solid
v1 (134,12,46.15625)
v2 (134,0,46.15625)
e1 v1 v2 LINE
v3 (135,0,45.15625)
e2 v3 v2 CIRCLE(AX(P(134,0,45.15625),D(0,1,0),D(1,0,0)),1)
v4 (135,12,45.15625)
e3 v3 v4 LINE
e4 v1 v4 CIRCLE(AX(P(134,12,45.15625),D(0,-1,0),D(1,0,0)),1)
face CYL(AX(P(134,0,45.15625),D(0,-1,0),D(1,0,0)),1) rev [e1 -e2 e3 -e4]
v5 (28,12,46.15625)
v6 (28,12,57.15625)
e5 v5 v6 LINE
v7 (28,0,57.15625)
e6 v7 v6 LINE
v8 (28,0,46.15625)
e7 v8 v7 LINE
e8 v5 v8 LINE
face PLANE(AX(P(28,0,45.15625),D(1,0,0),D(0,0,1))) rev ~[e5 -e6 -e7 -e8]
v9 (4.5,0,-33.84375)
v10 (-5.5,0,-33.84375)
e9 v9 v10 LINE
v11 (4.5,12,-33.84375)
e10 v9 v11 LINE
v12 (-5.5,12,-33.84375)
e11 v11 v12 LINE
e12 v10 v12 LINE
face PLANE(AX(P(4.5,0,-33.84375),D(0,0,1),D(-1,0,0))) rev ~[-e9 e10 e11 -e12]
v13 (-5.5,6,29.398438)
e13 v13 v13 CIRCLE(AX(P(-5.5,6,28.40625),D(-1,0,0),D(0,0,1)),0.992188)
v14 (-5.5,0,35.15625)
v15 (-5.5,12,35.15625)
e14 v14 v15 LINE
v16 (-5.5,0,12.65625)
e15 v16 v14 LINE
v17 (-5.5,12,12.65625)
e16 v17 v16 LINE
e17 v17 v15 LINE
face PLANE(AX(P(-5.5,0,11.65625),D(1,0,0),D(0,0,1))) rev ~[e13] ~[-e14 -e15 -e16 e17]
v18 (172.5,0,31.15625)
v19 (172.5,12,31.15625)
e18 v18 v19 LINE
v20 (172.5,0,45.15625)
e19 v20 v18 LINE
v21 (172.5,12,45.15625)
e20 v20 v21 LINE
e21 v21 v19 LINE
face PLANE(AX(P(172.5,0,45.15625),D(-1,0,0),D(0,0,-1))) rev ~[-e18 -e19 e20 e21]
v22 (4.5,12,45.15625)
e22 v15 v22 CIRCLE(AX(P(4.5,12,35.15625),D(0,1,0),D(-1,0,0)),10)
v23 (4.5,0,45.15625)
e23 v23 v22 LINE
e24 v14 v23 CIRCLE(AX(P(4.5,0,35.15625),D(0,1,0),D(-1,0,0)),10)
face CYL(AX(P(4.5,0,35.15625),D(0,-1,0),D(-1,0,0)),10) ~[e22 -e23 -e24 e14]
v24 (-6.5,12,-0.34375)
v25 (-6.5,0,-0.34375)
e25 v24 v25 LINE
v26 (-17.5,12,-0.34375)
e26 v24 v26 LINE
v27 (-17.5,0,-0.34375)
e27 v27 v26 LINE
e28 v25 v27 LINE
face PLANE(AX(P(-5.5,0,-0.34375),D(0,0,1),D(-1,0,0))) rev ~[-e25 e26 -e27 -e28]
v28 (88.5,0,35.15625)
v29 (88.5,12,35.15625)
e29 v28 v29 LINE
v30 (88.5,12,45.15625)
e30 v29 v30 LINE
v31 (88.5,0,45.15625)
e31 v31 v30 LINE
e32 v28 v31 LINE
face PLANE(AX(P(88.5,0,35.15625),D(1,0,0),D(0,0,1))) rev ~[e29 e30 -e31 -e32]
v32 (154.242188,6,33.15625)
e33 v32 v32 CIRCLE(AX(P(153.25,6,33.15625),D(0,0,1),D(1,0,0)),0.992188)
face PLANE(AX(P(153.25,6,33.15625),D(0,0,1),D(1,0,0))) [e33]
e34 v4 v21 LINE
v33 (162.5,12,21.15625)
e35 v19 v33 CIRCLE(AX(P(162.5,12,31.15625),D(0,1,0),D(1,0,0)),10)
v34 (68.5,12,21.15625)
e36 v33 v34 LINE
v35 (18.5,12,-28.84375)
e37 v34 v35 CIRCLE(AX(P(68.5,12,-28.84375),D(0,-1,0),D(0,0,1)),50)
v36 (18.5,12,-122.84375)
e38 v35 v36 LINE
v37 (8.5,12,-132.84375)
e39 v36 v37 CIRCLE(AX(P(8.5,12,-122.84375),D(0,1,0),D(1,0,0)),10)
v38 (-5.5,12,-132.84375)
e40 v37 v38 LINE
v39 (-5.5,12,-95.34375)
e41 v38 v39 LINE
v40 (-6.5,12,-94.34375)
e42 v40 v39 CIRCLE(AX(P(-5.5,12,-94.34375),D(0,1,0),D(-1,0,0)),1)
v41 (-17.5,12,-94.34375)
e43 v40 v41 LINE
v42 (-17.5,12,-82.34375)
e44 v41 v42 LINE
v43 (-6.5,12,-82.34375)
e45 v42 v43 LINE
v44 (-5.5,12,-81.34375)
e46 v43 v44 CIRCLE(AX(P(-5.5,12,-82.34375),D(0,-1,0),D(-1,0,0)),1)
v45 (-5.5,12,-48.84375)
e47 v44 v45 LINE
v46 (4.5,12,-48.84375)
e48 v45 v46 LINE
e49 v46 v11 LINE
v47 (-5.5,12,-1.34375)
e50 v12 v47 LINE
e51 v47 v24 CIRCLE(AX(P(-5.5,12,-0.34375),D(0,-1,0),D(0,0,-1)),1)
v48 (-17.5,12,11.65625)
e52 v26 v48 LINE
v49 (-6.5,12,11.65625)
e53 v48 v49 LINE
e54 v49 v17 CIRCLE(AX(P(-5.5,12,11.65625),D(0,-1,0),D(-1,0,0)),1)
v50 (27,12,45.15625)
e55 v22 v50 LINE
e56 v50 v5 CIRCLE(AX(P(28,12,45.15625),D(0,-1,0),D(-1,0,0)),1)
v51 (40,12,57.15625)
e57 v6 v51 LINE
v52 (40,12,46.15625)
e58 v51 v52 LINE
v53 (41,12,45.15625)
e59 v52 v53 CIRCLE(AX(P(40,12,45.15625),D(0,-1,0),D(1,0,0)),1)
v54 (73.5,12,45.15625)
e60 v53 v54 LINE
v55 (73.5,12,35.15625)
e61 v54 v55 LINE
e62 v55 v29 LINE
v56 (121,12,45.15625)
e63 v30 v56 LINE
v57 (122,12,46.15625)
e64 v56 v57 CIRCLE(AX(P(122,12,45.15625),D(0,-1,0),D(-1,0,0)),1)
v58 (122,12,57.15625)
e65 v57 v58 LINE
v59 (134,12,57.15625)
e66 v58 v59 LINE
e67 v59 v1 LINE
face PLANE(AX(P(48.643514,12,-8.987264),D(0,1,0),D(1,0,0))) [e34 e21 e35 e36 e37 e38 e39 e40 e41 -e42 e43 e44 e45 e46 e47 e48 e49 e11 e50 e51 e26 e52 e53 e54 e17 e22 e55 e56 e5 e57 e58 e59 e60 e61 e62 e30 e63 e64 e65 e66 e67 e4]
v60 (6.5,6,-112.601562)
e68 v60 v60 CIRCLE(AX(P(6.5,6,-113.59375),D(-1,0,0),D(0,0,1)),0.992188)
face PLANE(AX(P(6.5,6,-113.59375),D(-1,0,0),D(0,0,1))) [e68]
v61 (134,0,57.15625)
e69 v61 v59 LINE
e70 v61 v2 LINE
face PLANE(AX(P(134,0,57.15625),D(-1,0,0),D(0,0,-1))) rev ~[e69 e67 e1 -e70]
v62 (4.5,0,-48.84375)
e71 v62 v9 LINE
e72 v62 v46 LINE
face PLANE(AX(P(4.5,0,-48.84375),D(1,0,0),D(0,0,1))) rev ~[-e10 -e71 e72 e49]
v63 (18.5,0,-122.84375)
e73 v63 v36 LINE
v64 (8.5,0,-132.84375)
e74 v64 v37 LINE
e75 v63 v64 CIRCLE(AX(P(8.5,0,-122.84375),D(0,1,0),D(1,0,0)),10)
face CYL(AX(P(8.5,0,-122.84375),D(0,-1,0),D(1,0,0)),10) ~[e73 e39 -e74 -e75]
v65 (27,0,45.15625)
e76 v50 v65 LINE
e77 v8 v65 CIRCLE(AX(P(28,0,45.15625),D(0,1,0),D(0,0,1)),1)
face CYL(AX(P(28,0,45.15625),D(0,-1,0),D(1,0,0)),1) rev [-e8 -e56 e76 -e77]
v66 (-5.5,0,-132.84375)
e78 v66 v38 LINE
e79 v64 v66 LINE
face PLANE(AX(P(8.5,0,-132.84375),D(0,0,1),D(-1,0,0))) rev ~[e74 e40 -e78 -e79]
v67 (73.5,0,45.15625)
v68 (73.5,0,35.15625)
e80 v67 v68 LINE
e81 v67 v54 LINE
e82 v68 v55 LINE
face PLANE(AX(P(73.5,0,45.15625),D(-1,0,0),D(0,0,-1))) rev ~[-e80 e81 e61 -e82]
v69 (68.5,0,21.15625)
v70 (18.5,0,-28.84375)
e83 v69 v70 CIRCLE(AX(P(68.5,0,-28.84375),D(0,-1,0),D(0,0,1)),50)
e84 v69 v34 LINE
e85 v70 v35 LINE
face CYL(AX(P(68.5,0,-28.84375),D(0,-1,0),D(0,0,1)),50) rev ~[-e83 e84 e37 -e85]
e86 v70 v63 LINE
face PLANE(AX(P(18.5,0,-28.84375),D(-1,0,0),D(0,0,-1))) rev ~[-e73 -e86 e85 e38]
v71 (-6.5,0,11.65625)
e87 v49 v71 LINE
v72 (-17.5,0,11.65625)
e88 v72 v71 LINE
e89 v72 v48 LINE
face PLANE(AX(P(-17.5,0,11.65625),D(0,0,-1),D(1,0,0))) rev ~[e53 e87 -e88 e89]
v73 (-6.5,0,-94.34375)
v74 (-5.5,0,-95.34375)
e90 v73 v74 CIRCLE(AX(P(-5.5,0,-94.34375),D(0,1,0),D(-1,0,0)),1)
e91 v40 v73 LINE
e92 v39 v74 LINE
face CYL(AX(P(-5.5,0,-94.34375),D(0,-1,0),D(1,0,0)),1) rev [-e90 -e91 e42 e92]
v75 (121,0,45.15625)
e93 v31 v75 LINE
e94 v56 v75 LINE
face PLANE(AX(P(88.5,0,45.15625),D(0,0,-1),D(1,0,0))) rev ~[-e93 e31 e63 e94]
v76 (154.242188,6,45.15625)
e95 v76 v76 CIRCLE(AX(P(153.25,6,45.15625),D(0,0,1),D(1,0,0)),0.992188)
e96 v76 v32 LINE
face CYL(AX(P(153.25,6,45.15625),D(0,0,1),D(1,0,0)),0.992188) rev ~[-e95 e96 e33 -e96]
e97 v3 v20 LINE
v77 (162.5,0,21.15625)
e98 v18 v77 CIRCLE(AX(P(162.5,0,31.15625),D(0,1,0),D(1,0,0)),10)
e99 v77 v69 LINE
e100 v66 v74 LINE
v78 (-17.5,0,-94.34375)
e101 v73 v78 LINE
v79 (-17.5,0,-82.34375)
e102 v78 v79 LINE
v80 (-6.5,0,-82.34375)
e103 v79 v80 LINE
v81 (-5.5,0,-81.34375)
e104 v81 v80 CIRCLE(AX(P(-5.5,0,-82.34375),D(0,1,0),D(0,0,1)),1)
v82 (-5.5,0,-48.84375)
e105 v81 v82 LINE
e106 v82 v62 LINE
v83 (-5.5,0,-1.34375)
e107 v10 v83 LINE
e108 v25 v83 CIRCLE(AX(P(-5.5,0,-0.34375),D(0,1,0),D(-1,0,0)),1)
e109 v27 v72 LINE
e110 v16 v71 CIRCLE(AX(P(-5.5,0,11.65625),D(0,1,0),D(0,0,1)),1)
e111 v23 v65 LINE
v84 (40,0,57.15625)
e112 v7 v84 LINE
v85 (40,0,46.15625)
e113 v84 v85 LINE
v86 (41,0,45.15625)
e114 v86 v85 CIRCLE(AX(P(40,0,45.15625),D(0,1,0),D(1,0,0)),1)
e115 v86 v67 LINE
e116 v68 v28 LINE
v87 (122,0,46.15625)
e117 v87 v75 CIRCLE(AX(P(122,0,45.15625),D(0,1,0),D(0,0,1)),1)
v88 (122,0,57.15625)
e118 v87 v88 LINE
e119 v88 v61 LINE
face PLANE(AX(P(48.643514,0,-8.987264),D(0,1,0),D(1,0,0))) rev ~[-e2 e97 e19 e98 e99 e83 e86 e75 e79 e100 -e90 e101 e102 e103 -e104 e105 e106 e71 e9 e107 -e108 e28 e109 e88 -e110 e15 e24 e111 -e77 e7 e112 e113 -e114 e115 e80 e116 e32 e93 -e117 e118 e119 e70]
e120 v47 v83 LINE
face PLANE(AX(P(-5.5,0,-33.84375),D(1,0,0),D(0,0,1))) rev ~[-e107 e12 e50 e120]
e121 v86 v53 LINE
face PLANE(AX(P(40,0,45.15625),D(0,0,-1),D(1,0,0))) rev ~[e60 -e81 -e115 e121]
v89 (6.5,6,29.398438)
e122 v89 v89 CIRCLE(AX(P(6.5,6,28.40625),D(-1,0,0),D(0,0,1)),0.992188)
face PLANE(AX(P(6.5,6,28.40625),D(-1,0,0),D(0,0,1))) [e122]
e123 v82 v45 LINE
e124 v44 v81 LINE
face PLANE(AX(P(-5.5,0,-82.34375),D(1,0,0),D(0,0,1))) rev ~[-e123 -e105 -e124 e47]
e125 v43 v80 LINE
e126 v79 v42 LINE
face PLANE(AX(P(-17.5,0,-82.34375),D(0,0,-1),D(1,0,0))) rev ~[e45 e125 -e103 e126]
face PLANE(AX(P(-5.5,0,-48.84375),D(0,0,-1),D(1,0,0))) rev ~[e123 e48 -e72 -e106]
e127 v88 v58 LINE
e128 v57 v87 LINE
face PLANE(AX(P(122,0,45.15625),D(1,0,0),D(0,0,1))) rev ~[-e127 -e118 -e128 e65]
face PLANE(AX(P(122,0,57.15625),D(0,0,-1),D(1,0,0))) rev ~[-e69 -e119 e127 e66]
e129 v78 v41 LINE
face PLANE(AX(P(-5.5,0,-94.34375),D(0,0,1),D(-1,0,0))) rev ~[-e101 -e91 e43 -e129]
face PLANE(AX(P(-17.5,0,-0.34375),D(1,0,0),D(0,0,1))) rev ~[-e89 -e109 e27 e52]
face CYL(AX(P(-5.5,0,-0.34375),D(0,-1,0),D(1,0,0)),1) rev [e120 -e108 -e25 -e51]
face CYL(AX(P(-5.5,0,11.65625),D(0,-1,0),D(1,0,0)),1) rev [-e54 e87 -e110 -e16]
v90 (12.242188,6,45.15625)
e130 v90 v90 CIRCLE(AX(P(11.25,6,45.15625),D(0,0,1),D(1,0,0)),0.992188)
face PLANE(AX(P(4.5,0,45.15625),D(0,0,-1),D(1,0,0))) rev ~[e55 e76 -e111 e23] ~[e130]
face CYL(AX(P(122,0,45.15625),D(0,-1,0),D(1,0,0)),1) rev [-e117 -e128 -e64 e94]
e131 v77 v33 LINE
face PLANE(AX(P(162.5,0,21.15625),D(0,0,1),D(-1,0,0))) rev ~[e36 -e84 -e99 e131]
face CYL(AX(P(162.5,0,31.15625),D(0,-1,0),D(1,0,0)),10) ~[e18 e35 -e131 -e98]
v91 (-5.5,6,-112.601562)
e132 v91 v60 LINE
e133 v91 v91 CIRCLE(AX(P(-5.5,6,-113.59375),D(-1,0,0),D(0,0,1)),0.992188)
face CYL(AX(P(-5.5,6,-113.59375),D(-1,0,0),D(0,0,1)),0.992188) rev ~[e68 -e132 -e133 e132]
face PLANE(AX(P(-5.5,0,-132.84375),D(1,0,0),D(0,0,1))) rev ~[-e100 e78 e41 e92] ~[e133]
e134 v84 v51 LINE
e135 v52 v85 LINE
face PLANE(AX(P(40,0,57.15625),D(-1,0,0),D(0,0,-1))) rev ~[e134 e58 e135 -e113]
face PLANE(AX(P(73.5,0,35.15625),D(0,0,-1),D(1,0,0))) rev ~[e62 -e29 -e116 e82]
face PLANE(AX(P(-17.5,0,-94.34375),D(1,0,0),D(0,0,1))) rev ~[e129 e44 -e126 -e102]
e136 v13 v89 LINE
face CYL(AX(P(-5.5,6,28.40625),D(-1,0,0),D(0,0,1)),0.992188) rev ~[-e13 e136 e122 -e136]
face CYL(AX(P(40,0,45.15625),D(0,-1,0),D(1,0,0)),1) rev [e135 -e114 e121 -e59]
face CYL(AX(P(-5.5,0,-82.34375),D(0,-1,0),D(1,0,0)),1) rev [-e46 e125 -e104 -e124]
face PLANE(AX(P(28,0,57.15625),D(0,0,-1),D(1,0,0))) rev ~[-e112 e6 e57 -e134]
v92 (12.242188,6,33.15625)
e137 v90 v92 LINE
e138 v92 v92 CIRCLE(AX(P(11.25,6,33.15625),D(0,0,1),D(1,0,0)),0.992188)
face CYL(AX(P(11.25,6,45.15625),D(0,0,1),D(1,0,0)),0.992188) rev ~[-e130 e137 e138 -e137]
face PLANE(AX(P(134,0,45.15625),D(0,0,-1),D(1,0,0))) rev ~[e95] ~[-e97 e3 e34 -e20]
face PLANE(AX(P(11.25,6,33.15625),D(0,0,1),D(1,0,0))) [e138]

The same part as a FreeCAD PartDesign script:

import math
import FreeCAD as App
import Part
import Sketcher
from FreeCAD import Vector

doc = App.newDocument("Part")
params = doc.addObject("Spreadsheet::Sheet", "Params")
for row, (alias, value) in enumerate([
    ("sketch1_radius", "10 mm"),
    ("sketch1_radius2", "50 mm"),
    ("sketch1_width", "12 mm"),
    ("sketch1_width2", "15 mm"),
    ("sketch1_width3", "94 mm"),
    ("pad1_length", "12 mm"),
    ("pocket1_length", "12 mm"),
    ("pocket2_length", "12 mm"),
    ("sketch4_diameter", "2 mm"),
], start=1):
    params.set(f"A{row}", alias)
    params.set(f"B{row}", "=" + value)
    params.setAlias(f"B{row}", alias)

body = doc.addObject("PartDesign::Body", "Body")

# Sketch on XZ plane
sketch1 = body.newObject("Sketcher::SketchObject", "Sketch")
sketch1.AttachmentSupport = (doc.getObject("XZ_Plane"), [""])
sketch1.MapMode = "FlatFace"
sketch1.addGeometry([
    Part.LineSegment(Vector(-6, -133, 0), Vector(-6, -94, 0)),  # 0
    Part.LineSegment(Vector(-6, -94, 0), Vector(-18, -94, 0)),  # 1
    Part.LineSegment(Vector(-18, -94, 0), Vector(-18, -82, 0)),  # 2
    Part.LineSegment(Vector(-18, -82, 0), Vector(-6, -82, 0)),  # 3
    Part.LineSegment(Vector(-6, -82, 0), Vector(-6, -49, 0)),  # 4
    Part.LineSegment(Vector(-6, -49, 0), Vector(4, -49, 0)),  # 5
    Part.LineSegment(Vector(4, -49, 0), Vector(4, -34, 0)),  # 6
    Part.LineSegment(Vector(4, -34, 0), Vector(-6, -34, 0)),  # 7
    Part.LineSegment(Vector(-6, -34, 0), Vector(-6, 0, 0)),  # 8
    Part.LineSegment(Vector(-6, 0, 0), Vector(-18, 0, 0)),  # 9
    Part.LineSegment(Vector(-18, 0, 0), Vector(-18, 12, 0)),  # 10
    Part.LineSegment(Vector(-18, 12, 0), Vector(-6, 12, 0)),  # 11
    Part.LineSegment(Vector(-6, 12, 0), Vector(-6, 35, 0)),  # 12
    Part.ArcOfCircle(Part.Circle(Vector(4, 35, 0), Vector(0, 0, 1), 10), math.radians(90), math.radians(180)),  # 13
    Part.LineSegment(Vector(4, 45, 0), Vector(28, 45, 0)),  # 14
    Part.LineSegment(Vector(28, 45, 0), Vector(28, 57, 0)),  # 15
    Part.LineSegment(Vector(28, 57, 0), Vector(40, 57, 0)),  # 16
    Part.LineSegment(Vector(40, 57, 0), Vector(40, 45, 0)),  # 17
    Part.LineSegment(Vector(40, 45, 0), Vector(74, 45, 0)),  # 18
    Part.LineSegment(Vector(74, 45, 0), Vector(74, 35, 0)),  # 19
    Part.LineSegment(Vector(74, 35, 0), Vector(88, 35, 0)),  # 20
    Part.LineSegment(Vector(88, 35, 0), Vector(88, 45, 0)),  # 21
    Part.LineSegment(Vector(88, 45, 0), Vector(122, 45, 0)),  # 22
    Part.LineSegment(Vector(122, 45, 0), Vector(122, 57, 0)),  # 23
    Part.LineSegment(Vector(122, 57, 0), Vector(134, 57, 0)),  # 24
    Part.LineSegment(Vector(134, 57, 0), Vector(134, 45, 0)),  # 25
    Part.LineSegment(Vector(134, 45, 0), Vector(172, 45, 0)),  # 26
    Part.LineSegment(Vector(172, 45, 0), Vector(172, 31, 0)),  # 27
    Part.ArcOfCircle(Part.Circle(Vector(162, 31, 0), Vector(0, 0, 1), 10), math.radians(-90), math.radians(0)),  # 28
    Part.LineSegment(Vector(162, 21, 0), Vector(68, 21, 0)),  # 29
    Part.ArcOfCircle(Part.Circle(Vector(69, -29, 0), Vector(0, 0, 1), 50), math.radians(90), math.radians(180)),  # 30
    Part.LineSegment(Vector(18, -29, 0), Vector(18, -123, 0)),  # 31
    Part.ArcOfCircle(Part.Circle(Vector(8, -123, 0), Vector(0, 0, 1), 10), math.radians(-90), math.radians(0)),  # 32
    Part.LineSegment(Vector(8, -133, 0), Vector(-6, -133, 0)),  # 33
], False)
sketch1.addConstraint([
    Sketcher.Constraint("Coincident", 0, 2, 1, 1),
    Sketcher.Constraint("Coincident", 1, 2, 2, 1),
    Sketcher.Constraint("Coincident", 2, 2, 3, 1),
    Sketcher.Constraint("Coincident", 3, 2, 4, 1),
    Sketcher.Constraint("Coincident", 4, 2, 5, 1),
    Sketcher.Constraint("Coincident", 5, 2, 6, 1),
    Sketcher.Constraint("Coincident", 6, 2, 7, 1),
    Sketcher.Constraint("Coincident", 7, 2, 8, 1),
    Sketcher.Constraint("Coincident", 8, 2, 9, 1),
    Sketcher.Constraint("Coincident", 9, 2, 10, 1),
    Sketcher.Constraint("Coincident", 10, 2, 11, 1),
    Sketcher.Constraint("Coincident", 11, 2, 12, 1),
    Sketcher.Constraint("Tangent", 12, 2, 13, 2),
    Sketcher.Constraint("Tangent", 13, 1, 14, 1),
    Sketcher.Constraint("Coincident", 14, 2, 15, 1),
    Sketcher.Constraint("Coincident", 15, 2, 16, 1),
    Sketcher.Constraint("Coincident", 16, 2, 17, 1),
    Sketcher.Constraint("Coincident", 17, 2, 18, 1),
    Sketcher.Constraint("Coincident", 18, 2, 19, 1),
    Sketcher.Constraint("Coincident", 19, 2, 20, 1),
    Sketcher.Constraint("Coincident", 20, 2, 21, 1),
    Sketcher.Constraint("Coincident", 21, 2, 22, 1),
    Sketcher.Constraint("Coincident", 22, 2, 23, 1),
    Sketcher.Constraint("Coincident", 23, 2, 24, 1),
    Sketcher.Constraint("Coincident", 24, 2, 25, 1),
    Sketcher.Constraint("Coincident", 25, 2, 26, 1),
    Sketcher.Constraint("Coincident", 26, 2, 27, 1),
    Sketcher.Constraint("Tangent", 27, 2, 28, 2),
    Sketcher.Constraint("Tangent", 28, 1, 29, 1),
    Sketcher.Constraint("Tangent", 29, 2, 30, 1),
    Sketcher.Constraint("Tangent", 30, 2, 31, 1),
    Sketcher.Constraint("Tangent", 31, 2, 32, 2),
    Sketcher.Constraint("Tangent", 32, 1, 33, 1),
    Sketcher.Constraint("Coincident", 33, 2, 0, 1),
    Sketcher.Constraint("Vertical", 0),
    Sketcher.Constraint("Horizontal", 1),
    Sketcher.Constraint("Vertical", 2),
    Sketcher.Constraint("Horizontal", 3),
    Sketcher.Constraint("Vertical", 4),
    Sketcher.Constraint("Horizontal", 5),
    Sketcher.Constraint("Vertical", 6),
    Sketcher.Constraint("Horizontal", 7),
    Sketcher.Constraint("Vertical", 8),
    Sketcher.Constraint("Horizontal", 9),
    Sketcher.Constraint("Vertical", 10),
    Sketcher.Constraint("Horizontal", 11),
    Sketcher.Constraint("Vertical", 12),
    Sketcher.Constraint("Horizontal", 14),
    Sketcher.Constraint("Vertical", 15),
    Sketcher.Constraint("Horizontal", 16),
    Sketcher.Constraint("Vertical", 17),
    Sketcher.Constraint("Horizontal", 18),
    Sketcher.Constraint("Vertical", 19),
    Sketcher.Constraint("Horizontal", 20),
    Sketcher.Constraint("Vertical", 21),
    Sketcher.Constraint("Horizontal", 22),
    Sketcher.Constraint("Vertical", 23),
    Sketcher.Constraint("Horizontal", 24),
    Sketcher.Constraint("Vertical", 25),
    Sketcher.Constraint("Horizontal", 26),
    Sketcher.Constraint("Vertical", 27),
    Sketcher.Constraint("Horizontal", 29),
    Sketcher.Constraint("Vertical", 31),
    Sketcher.Constraint("Horizontal", 33),
    Sketcher.Constraint("Equal", 13, 28),
    Sketcher.Constraint("Equal", 28, 32),
    Sketcher.Constraint("Horizontal", 14, 2, 17, 2),
    Sketcher.Constraint("Horizontal", 12, 2, 19, 2),
    Sketcher.Constraint("Horizontal", 18, 2, 21, 2),
    Sketcher.Constraint("Horizontal", 16, 2, 23, 2),
    Sketcher.Constraint("Horizontal", 22, 2, 25, 2),
    Sketcher.Constraint("Vertical", 0, 2, 3, 2),
    Sketcher.Constraint("Vertical", 13, 3, 5, 2),
    Sketcher.Constraint("Vertical", 4, 2, 7, 2),
    Sketcher.Constraint("Vertical", 2, 2, 9, 2),
    Sketcher.Constraint("Vertical", 8, 2, 11, 2),
    Sketcher.Constraint("Equal", 11, 16),
    Sketcher.Constraint("Equal", 18, 22),
    Sketcher.Constraint("Equal", 16, 24),
    Sketcher.Constraint("Equal", 26, 0),
    Sketcher.Constraint("Equal", 24, 2),
    Sketcher.Constraint("Equal", 22, 4),
    Sketcher.Constraint("Equal", 20, 6),
    Sketcher.Constraint("Equal", 4, 8),
    Sketcher.Constraint("Equal", 2, 10),
    Sketcher.Constraint("Equal", 14, 12),
    Sketcher.Constraint("Equal", 10, 15),
    Sketcher.Constraint("Equal", 33, 27),
    Sketcher.Constraint("Radius", 13, 10.0),
    Sketcher.Constraint("Radius", 30, 50.0),
    Sketcher.Constraint("DistanceX", 1, 2, 1, 1, 12.0),
    Sketcher.Constraint("DistanceX", 20, 1, 20, 2, 15.0),
    Sketcher.Constraint("DistanceX", 29, 2, 29, 1, 94.0),
    Sketcher.Constraint("DistanceX", 33, 2, 33, 1, 14.0),
    Sketcher.Constraint("DistanceX", 14, 1, 14, 2, 23.5),
    Sketcher.Constraint("DistanceX", 18, 1, 18, 2, 33.5),
    Sketcher.Constraint("DistanceX", -1, 1, 14, 2, 28.0),
    Sketcher.Constraint("DistanceY", -1, 1, 13, 3, 35.15625),
])
sketch1.setExpression("Constraints[88]", "Params.sketch1_radius")
sketch1.setExpression("Constraints[89]", "Params.sketch1_radius2")
sketch1.setExpression("Constraints[90]", "Params.sketch1_width")
sketch1.setExpression("Constraints[91]", "Params.sketch1_width2")
sketch1.setExpression("Constraints[92]", "Params.sketch1_width3")
pad1 = body.newObject("PartDesign::Pad", "Pad")
pad1.Profile = sketch1
pad1.setExpression("Length", "Params.pad1_length")
pad1.Reversed = True

# Sketch on XY plane
sketch2 = body.newObject("Sketcher::SketchObject", "Sketch001")
sketch2.AttachmentSupport = (doc.getObject("XY_Plane"), [""])
sketch2.MapMode = "FlatFace"
sketch2.AttachmentOffset = App.Placement(Vector(0, 0, 45.15625), App.Rotation())
sketch2.addGeometry([
    Part.Circle(Vector(153.2, 6, 0), Vector(0, 0, 1), 1),
    Part.Circle(Vector(11.2, 6, 0), Vector(0, 0, 1), 1),
], False)
sketch2.addConstraint([
    Sketcher.Constraint("Equal", 0, 1),
    Sketcher.Constraint("Horizontal", 0, 3, 1, 3),
    Sketcher.Constraint("DistanceY", -1, 1, 0, 3, 6.0),
    Sketcher.Constraint("DistanceX", 1, 3, 0, 3, 142.0),
    Sketcher.Constraint("DistanceX", -1, 1, 0, 3, 153.25),
    Sketcher.Constraint("Diameter", 0, 1.984375),
])
pocket1 = body.newObject("PartDesign::Pocket", "Pocket")
pocket1.Profile = sketch2
pocket1.setExpression("Length", "Params.pocket1_length")

# Sketch on YZ plane
sketch3 = body.newObject("Sketcher::SketchObject", "Sketch002")
sketch3.AttachmentSupport = (doc.getObject("YZ_Plane"), [""])
sketch3.MapMode = "FlatFace"
sketch3.AttachmentOffset = App.Placement(Vector(0, 0, -5.5), App.Rotation())
sketch3.addGeometry([
    Part.Circle(Vector(6, 28.4, 0), Vector(0, 0, 1), 1),
    Part.Circle(Vector(6, -113.6, 0), Vector(0, 0, 1), 1),
], False)
sketch3.addConstraint([
    Sketcher.Constraint("Equal", 0, 1),
    Sketcher.Constraint("Vertical", 0, 3, 1, 3),
    Sketcher.Constraint("DistanceX", -1, 1, 0, 3, 6.0),
    Sketcher.Constraint("DistanceY", 1, 3, 0, 3, 142.0),
    Sketcher.Constraint("Diameter", 0, 1.984375),
    Sketcher.Constraint("DistanceY", -1, 1, 0, 3, 28.40625),
])
pocket2 = body.newObject("PartDesign::Pocket", "Pocket001")
pocket2.Profile = sketch3
pocket2.setExpression("Length", "Params.pocket2_length")
pocket2.Reversed = True

# Sketch on XZ plane
sketch4 = body.newObject("Sketcher::SketchObject", "Sketch003")
sketch4.AttachmentSupport = (doc.getObject("XZ_Plane"), [""])
sketch4.MapMode = "FlatFace"
sketch4.addGeometry([
    Part.Circle(Vector(-5.5, -94.3, 0), Vector(0, 0, 1), 1),  # 0
    Part.Circle(Vector(-5.5, -82.3, 0), Vector(0, 0, 1), 1),  # 1
    Part.Circle(Vector(-5.5, -0.3, 0), Vector(0, 0, 1), 1),  # 2
    Part.Circle(Vector(-5.5, 11.7, 0), Vector(0, 0, 1), 1),  # 3
    Part.Circle(Vector(28, 45.2, 0), Vector(0, 0, 1), 1),  # 4
    Part.Circle(Vector(40, 45.2, 0), Vector(0, 0, 1), 1),  # 5
    Part.Circle(Vector(122, 45.2, 0), Vector(0, 0, 1), 1),  # 6
    Part.Circle(Vector(134, 45.2, 0), Vector(0, 0, 1), 1),  # 7
], False)
sketch4.addConstraint([
    Sketcher.Constraint("Equal", 0, 1),
    Sketcher.Constraint("Equal", 1, 2),
    Sketcher.Constraint("Equal", 2, 3),
    Sketcher.Constraint("Equal", 3, 4),
    Sketcher.Constraint("Equal", 4, 5),
    Sketcher.Constraint("Equal", 5, 6),
    Sketcher.Constraint("Equal", 6, 7),
    Sketcher.Constraint("Horizontal", 4, 3, 5, 3),
    Sketcher.Constraint("Horizontal", 5, 3, 6, 3),
    Sketcher.Constraint("Horizontal", 6, 3, 7, 3),
    Sketcher.Constraint("Vertical", 0, 3, 1, 3),
    Sketcher.Constraint("Vertical", 1, 3, 2, 3),
    Sketcher.Constraint("Vertical", 2, 3, 3, 3),
    Sketcher.Constraint("Diameter", 0, 2.0),
    Sketcher.Constraint("DistanceX", -1, 1, 4, 3, 28.0),
    Sketcher.Constraint("DistanceX", -1, 1, 5, 3, 40.0),
    Sketcher.Constraint("DistanceX", -1, 1, 6, 3, 122.0),
    Sketcher.Constraint("DistanceX", -1, 1, 7, 3, 134.0),
    Sketcher.Constraint("DistanceY", 0, 3, 1, 3, 12.0),
    Sketcher.Constraint("DistanceY", 1, 3, 2, 3, 82.0),
    Sketcher.Constraint("DistanceY", 2, 3, 3, 3, 12.0),
    Sketcher.Constraint("DistanceX", 0, 3, -1, 1, 5.5),
    Sketcher.Constraint("DistanceY", 3, 3, 4, 3, 33.5),
    Sketcher.Constraint("DistanceY", 0, 3, -1, 1, 94.34375),
])
sketch4.setExpression("Constraints[13]", "Params.sketch4_diameter")
pocket3 = body.newObject("PartDesign::Pocket", "Pocket002")
pocket3.Profile = sketch4
pocket3.Type = "ThroughAll"

doc.recompute()
